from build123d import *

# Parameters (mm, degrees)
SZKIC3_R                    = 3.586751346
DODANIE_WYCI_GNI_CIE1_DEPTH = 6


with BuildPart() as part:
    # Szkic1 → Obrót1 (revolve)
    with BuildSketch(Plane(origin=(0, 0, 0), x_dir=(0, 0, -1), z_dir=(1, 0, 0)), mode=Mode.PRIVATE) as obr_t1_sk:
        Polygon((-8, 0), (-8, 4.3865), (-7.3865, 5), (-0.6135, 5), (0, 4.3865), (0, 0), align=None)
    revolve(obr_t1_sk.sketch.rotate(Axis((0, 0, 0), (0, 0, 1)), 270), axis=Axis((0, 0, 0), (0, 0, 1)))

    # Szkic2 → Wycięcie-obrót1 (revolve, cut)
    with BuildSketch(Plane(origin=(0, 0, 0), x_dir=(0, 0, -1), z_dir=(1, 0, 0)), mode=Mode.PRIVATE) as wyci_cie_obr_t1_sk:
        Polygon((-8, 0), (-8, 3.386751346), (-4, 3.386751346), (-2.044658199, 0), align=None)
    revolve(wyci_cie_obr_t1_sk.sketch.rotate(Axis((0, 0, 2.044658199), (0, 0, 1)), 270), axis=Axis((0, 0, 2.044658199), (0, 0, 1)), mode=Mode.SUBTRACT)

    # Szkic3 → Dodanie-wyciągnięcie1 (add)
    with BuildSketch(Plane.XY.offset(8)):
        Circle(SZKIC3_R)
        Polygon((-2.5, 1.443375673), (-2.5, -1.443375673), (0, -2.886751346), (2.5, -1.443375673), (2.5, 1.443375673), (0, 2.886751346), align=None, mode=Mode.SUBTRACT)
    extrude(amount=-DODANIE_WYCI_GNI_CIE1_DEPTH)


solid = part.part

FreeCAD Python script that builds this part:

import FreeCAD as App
import Part
import Sketcher
from FreeCAD import Vector
Q = App.Units.Quantity

doc = App.newDocument("Part")
body = doc.addObject("PartDesign::Body", "Body")

sketch1 = body.newObject("Sketcher::SketchObject", "Sketch")
sketch1.AttachmentSupport = (doc.getObject("YZ_Plane"), [""])
sketch1.MapMode = "FlatFace"
sketch1.addGeometry([
    Part.LineSegment(Vector(4.3865, 8, 0), Vector(0, 8, 0)),
    Part.LineSegment(Vector(0, 8, 0), Vector(0, 0, 0)),
    Part.LineSegment(Vector(0, 0, 0), Vector(4.3865, 0, 0)),
    Part.LineSegment(Vector(4.3865, 0, 0), Vector(5, 0.6135, 0)),
    Part.LineSegment(Vector(5, 0.6135, 0), Vector(5, 7.3865, 0)),
    Part.LineSegment(Vector(5, 7.3865, 0), Vector(4.3865, 8, 0)),
], False)
sketch1.addConstraint([
    Sketcher.Constraint("Coincident", 0, 2, 1, 1),
    Sketcher.Constraint("Coincident", 1, 2, 2, 1),
    Sketcher.Constraint("Coincident", 2, 2, 3, 1),
    Sketcher.Constraint("Coincident", 3, 2, 4, 1),
    Sketcher.Constraint("Coincident", 4, 2, 5, 1),
    Sketcher.Constraint("Coincident", 5, 2, 0, 1),
    Sketcher.Constraint("Horizontal", 0),
    Sketcher.Constraint("Vertical", 1),
    Sketcher.Constraint("Horizontal", 2),
    Sketcher.Constraint("Vertical", 4),
    Sketcher.Constraint("Coincident", 1, 2, -1, 1),
    Sketcher.Constraint("Perpendicular", 3, 5),
    Sketcher.Constraint("Vertical", 2, 2, 5, 2),
    Sketcher.Constraint("Equal", 3, 5),
    Sketcher.Constraint("DistanceY", 1, 2, 1, 1, 8.0),
    Sketcher.Constraint("DistanceX", -1, 1, 3, 2, 5.0),
    Sketcher.Constraint("DistanceY", 4, 1, 4, 2, 6.773),
])
revolution = body.newObject("PartDesign::Revolution", "Revolution")
revolution.Profile = sketch1
revolution.ReferenceAxis = (sketch1, ["V_Axis"])
revolution.Angle = 360

sketch2 = body.newObject("Sketcher::SketchObject", "Sketch001")
sketch2.AttachmentSupport = (doc.getObject("YZ_Plane"), [""])
sketch2.MapMode = "FlatFace"
sketch2.addGeometry([
    Part.LineSegment(Vector(3.386751, 8, 0), Vector(0, 8, 0)),
    Part.LineSegment(Vector(0, 8, 0), Vector(0, 2.044658, 0)),
    Part.LineSegment(Vector(0, 2.044658, 0), Vector(3.386751, 4, 0)),
    Part.LineSegment(Vector(3.386751, 4, 0), Vector(3.386751, 8, 0)),
], False)
sketch2.addConstraint([
    Sketcher.Constraint("Coincident", 0, 2, 1, 1),
    Sketcher.Constraint("Coincident", 1, 2, 2, 1),
    Sketcher.Constraint("Coincident", 2, 2, 3, 1),
    Sketcher.Constraint("Coincident", 3, 2, 0, 1),
    Sketcher.Constraint("Horizontal", 0),
    Sketcher.Constraint("Vertical", 1),
    Sketcher.Constraint("Vertical", 3),
    Sketcher.Constraint("PointOnObject", 0, 2, -2),
    Sketcher.Constraint("DistanceY", 3, 1, 3, 2, 4.0),
    Sketcher.Constraint("Angle", 2, Q("30 deg")),
    Sketcher.Constraint("DistanceY", -1, 1, 0, 2, 8.0),
    Sketcher.Constraint("DistanceX", 0, 2, 0, 1, 3.386751),
])
groove = body.newObject("PartDesign::Groove", "Groove")
groove.Profile = sketch2
groove.ReferenceAxis = (sketch2, ["V_Axis"])
groove.Angle = 360

sketch3 = body.newObject("Sketcher::SketchObject", "Sketch002")
sketch3.AttachmentSupport = (doc.getObject("XY_Plane"), [""])
sketch3.MapMode = "FlatFace"
sketch3.AttachmentOffset = App.Placement(Vector(0, 0, 8), App.Rotation())
sketch3.addGeometry([
    Part.Circle(Vector(0, 0, 0), Vector(0, 0, 1), 3.586751),
    Part.LineSegment(Vector(-2.5, -1.443376, 0), Vector(-2.5, 1.443376, 0)),
    Part.LineSegment(Vector(-2.5, 1.443376, 0), Vector(0, 2.886751, 0)),
    Part.LineSegment(Vector(0, 2.886751, 0), Vector(2.5, 1.443376, 0)),
    Part.LineSegment(Vector(2.5, 1.443376, 0), Vector(2.5, -1.443376, 0)),
    Part.LineSegment(Vector(2.5, -1.443376, 0), Vector(0, -2.886751, 0)),
    Part.LineSegment(Vector(0, -2.886751, 0), Vector(-2.5, -1.443376, 0)),
], False)
sketch3.addConstraint([
    Sketcher.Constraint("Coincident", 1, 2, 2, 1),
    Sketcher.Constraint("Coincident", 2, 2, 3, 1),
    Sketcher.Constraint("Coincident", 3, 2, 4, 1),
    Sketcher.Constraint("Coincident", 4, 2, 5, 1),
    Sketcher.Constraint("Coincident", 5, 2, 6, 1),
    Sketcher.Constraint("Coincident", 6, 2, 1, 1),
    Sketcher.Constraint("Vertical", 1),
    Sketcher.Constraint("Vertical", 4),
    Sketcher.Constraint("Coincident", 0, 3, -1, 1),
    Sketcher.Constraint("Symmetric", 1, 2, 4, 2, -1, 1),
    Sketcher.Constraint("Symmetric", 2, 2, 5, 2, -1, 1),
    Sketcher.Constraint("PointOnObject", 2, 2, -2),
    Sketcher.Constraint("Parallel", 3, 6),
    Sketcher.Constraint("Horizontal", 1, 2, 3, 2),
    Sketcher.Constraint("Angle", 2, Q("30 deg")),
    Sketcher.Constraint("DistanceX", 1, 2, 3, 2, 5.0),
    Sketcher.Constraint("Diameter", 0, 7.173503),
    Sketcher.Constraint("DistanceY", 1, 1, 1, 2, 2.886751),
])
pad1 = body.newObject("PartDesign::Pad", "Pad")
pad1.Profile = sketch3
pad1.Length = 6
pad1.Reversed = True

doc.recompute()
